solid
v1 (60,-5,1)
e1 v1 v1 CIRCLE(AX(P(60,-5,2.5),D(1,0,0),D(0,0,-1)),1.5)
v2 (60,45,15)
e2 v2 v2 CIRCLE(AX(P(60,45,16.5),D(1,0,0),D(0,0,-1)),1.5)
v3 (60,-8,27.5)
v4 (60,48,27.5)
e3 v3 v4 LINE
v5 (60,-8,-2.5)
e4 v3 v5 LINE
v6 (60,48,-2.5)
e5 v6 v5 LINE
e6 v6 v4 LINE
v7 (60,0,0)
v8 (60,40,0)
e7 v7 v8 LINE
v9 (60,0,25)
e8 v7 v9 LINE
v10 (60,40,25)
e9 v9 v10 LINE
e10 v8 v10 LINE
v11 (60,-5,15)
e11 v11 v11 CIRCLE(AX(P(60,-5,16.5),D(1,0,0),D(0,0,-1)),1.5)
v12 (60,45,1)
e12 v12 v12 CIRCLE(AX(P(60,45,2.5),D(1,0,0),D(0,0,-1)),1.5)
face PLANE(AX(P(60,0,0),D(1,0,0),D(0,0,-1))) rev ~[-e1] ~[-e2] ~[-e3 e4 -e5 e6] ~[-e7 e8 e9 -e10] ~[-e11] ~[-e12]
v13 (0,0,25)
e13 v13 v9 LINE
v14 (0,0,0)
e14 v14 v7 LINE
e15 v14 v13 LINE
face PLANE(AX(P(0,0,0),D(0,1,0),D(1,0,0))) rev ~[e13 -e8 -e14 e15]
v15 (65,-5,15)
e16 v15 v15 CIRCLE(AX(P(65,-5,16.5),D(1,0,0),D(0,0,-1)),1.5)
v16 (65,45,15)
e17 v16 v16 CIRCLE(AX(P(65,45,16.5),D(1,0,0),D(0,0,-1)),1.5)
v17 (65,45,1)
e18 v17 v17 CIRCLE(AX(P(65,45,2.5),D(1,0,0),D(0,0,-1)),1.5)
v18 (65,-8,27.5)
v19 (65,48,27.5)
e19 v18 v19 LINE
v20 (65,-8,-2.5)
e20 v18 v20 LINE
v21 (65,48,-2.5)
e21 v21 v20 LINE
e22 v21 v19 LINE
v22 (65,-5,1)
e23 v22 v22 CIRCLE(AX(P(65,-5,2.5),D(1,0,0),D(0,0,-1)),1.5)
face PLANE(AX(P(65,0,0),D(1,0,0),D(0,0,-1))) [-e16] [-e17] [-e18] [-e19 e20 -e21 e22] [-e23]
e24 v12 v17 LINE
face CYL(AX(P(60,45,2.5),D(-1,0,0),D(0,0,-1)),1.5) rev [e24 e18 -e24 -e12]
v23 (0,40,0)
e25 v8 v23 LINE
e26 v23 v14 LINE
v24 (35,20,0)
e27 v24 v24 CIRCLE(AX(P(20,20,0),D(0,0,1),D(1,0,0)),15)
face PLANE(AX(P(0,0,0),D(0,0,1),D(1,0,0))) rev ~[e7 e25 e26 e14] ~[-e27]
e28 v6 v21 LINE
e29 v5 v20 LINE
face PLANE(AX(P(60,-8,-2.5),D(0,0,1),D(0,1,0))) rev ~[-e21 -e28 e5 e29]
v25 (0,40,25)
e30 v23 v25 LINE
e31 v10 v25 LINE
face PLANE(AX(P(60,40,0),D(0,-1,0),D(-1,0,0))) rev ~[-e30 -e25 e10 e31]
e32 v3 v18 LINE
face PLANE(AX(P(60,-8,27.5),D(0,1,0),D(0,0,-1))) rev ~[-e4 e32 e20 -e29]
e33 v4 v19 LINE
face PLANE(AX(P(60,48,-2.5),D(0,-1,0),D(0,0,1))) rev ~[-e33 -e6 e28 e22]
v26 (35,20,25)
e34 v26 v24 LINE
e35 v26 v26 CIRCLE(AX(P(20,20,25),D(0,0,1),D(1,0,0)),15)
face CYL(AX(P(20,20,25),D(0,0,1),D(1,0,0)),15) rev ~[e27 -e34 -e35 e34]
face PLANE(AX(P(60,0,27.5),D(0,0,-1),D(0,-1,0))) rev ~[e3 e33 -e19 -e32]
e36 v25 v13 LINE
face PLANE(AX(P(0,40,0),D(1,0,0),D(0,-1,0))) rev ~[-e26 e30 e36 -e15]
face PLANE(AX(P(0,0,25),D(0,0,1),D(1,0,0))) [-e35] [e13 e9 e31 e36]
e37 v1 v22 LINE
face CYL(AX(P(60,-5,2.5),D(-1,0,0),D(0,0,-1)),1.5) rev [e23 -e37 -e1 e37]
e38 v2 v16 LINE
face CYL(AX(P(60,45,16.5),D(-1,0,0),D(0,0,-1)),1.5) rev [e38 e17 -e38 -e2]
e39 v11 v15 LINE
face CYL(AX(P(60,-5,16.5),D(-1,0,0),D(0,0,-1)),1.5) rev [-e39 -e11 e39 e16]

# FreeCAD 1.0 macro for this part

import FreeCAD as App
import Part
import Sketcher

V = App.Vector

doc = App.newDocument("Part")
body = doc.addObject("PartDesign::Body", "Body")

# Sketch on XY plane
sketch1 = body.newObject("Sketcher::SketchObject", "Sketch")
sketch1.AttachmentSupport = (doc.getObject("XY_Plane"), [""])
sketch1.MapMode = "FlatFace"
sketch1.addGeometry([
    Part.LineSegment(V(0, 40, 0), V(0, 0, 0)),
    Part.LineSegment(V(0, 0, 0), V(60, 0, 0)),
    Part.LineSegment(V(60, 0, 0), V(60, 40, 0)),
    Part.LineSegment(V(60, 40, 0), V(0, 40, 0)),
], False)
sketch1.addConstraint([
    Sketcher.Constraint("Coincident", 0, 2, 1, 1),
    Sketcher.Constraint("Coincident", 1, 2, 2, 1),
    Sketcher.Constraint("Coincident", 2, 2, 3, 1),
    Sketcher.Constraint("Coincident", 3, 2, 0, 1),
    Sketcher.Constraint("Vertical", 0),
    Sketcher.Constraint("Horizontal", 1),
    Sketcher.Constraint("Vertical", 2),
    Sketcher.Constraint("Horizontal", 3),
    Sketcher.Constraint("Coincident", 0, 2, -1, 1),
    Sketcher.Constraint("DistanceX", 1, 1, 1, 2, 60.0),
    Sketcher.Constraint("DistanceY", 0, 2, 0, 1, 40.0),
])
pad1 = body.newObject("PartDesign::Pad", "Pad")
pad1.Profile = sketch1
pad1.Length = 25

# Sketch on XY plane
sketch2 = body.newObject("Sketcher::SketchObject", "Sketch001")
sketch2.AttachmentSupport = (doc.getObject("XY_Plane"), [""])
sketch2.MapMode = "FlatFace"
sketch2.AttachmentOffset = App.Placement(V(0, 0, 25), App.Rotation())
sketch2.addGeometry(Part.Circle(V(20, 20, 0), V(0, 0, 1), 15), False)
sketch2.addConstraint([
    Sketcher.Constraint("Diameter", 0, 30.0),
    Sketcher.Constraint("DistanceX", -1, 1, 0, 3, 20.0),
    Sketcher.Constraint("DistanceY", -1, 1, 0, 3, 20.0),
])
pocket1 = body.newObject("PartDesign::Pocket", "Pocket")
pocket1.Profile = sketch2
pocket1.Type = "ThroughAll"

# Sketch on YZ plane
sketch3 = body.newObject("Sketcher::SketchObject", "Sketch002")
sketch3.AttachmentSupport = (doc.getObject("YZ_Plane"), [""])
sketch3.MapMode = "FlatFace"
sketch3.AttachmentOffset = App.Placement(V(0, 0, 60), App.Rotation())
sketch3.addGeometry([
    Part.LineSegment(V(-8, -2.5, 0), V(48, -2.5, 0)),  # 0
    Part.LineSegment(V(48, -2.5, 0), V(48, 27.5, 0)),  # 1
    Part.LineSegment(V(48, 27.5, 0), V(-8, 27.5, 0)),  # 2
    Part.LineSegment(V(-8, 27.5, 0), V(-8, -2.5, 0)),  # 3
    Part.Circle(V(-5, 2.5, 0), V(0, 0, 1), 1.5),  # 4
    Part.Circle(V(-5, 16.5, 0), V(0, 0, 1), 1.5),  # 5
    Part.Circle(V(45, 2.5, 0), V(0, 0, 1), 1.5),  # 6
    Part.Circle(V(45, 16.5, 0), V(0, 0, 1), 1.5),  # 7
], False)
sketch3.addConstraint([
    Sketcher.Constraint("Coincident", 0, 2, 1, 1),
    Sketcher.Constraint("Coincident", 1, 2, 2, 1),
    Sketcher.Constraint("Coincident", 2, 2, 3, 1),
    Sketcher.Constraint("Coincident", 3, 2, 0, 1),
    Sketcher.Constraint("Horizontal", 0),
    Sketcher.Constraint("Vertical", 1),
    Sketcher.Constraint("Horizontal", 2),
    Sketcher.Constraint("Vertical", 3),
    Sketcher.Constraint("Equal", 4, 5),
    Sketcher.Constraint("Equal", 5, 6),
    Sketcher.Constraint("Equal", 6, 7),
    Sketcher.Constraint("Horizontal", 4, 3, 6, 3),
    Sketcher.Constraint("Horizontal", 5, 3, 7, 3),
    Sketcher.Constraint("Vertical", 4, 3, 5, 3),
    Sketcher.Constraint("Vertical", 6, 3, 7, 3),
    Sketcher.Constraint("Diameter", 4, 3.0),
    Sketcher.Constraint("DistanceY", 1, 1, 1, 2, 30.0),
    Sketcher.Constraint("DistanceX", 4, 3, -1, 1, 5.0),
    Sketcher.Constraint("DistanceX", 2, 2, -1, 1, 8.0),
    Sketcher.Constraint("DistanceY", 4, 3, 5, 3, 14.0),
    Sketcher.Constraint("DistanceX", 6, 3, 0, 2, 3.0),
    Sketcher.Constraint("DistanceY", 0, 2, 6, 3, 5.0),
    Sketcher.Constraint("DistanceX", 0, 1, 0, 2, 56.0),
    Sketcher.Constraint("DistanceY", -1, 1, 4, 3, 2.5),
])
pad2 = body.newObject("PartDesign::Pad", "Pad001")
pad2.Profile = sketch3
pad2.Length = 5

doc.recompute()
